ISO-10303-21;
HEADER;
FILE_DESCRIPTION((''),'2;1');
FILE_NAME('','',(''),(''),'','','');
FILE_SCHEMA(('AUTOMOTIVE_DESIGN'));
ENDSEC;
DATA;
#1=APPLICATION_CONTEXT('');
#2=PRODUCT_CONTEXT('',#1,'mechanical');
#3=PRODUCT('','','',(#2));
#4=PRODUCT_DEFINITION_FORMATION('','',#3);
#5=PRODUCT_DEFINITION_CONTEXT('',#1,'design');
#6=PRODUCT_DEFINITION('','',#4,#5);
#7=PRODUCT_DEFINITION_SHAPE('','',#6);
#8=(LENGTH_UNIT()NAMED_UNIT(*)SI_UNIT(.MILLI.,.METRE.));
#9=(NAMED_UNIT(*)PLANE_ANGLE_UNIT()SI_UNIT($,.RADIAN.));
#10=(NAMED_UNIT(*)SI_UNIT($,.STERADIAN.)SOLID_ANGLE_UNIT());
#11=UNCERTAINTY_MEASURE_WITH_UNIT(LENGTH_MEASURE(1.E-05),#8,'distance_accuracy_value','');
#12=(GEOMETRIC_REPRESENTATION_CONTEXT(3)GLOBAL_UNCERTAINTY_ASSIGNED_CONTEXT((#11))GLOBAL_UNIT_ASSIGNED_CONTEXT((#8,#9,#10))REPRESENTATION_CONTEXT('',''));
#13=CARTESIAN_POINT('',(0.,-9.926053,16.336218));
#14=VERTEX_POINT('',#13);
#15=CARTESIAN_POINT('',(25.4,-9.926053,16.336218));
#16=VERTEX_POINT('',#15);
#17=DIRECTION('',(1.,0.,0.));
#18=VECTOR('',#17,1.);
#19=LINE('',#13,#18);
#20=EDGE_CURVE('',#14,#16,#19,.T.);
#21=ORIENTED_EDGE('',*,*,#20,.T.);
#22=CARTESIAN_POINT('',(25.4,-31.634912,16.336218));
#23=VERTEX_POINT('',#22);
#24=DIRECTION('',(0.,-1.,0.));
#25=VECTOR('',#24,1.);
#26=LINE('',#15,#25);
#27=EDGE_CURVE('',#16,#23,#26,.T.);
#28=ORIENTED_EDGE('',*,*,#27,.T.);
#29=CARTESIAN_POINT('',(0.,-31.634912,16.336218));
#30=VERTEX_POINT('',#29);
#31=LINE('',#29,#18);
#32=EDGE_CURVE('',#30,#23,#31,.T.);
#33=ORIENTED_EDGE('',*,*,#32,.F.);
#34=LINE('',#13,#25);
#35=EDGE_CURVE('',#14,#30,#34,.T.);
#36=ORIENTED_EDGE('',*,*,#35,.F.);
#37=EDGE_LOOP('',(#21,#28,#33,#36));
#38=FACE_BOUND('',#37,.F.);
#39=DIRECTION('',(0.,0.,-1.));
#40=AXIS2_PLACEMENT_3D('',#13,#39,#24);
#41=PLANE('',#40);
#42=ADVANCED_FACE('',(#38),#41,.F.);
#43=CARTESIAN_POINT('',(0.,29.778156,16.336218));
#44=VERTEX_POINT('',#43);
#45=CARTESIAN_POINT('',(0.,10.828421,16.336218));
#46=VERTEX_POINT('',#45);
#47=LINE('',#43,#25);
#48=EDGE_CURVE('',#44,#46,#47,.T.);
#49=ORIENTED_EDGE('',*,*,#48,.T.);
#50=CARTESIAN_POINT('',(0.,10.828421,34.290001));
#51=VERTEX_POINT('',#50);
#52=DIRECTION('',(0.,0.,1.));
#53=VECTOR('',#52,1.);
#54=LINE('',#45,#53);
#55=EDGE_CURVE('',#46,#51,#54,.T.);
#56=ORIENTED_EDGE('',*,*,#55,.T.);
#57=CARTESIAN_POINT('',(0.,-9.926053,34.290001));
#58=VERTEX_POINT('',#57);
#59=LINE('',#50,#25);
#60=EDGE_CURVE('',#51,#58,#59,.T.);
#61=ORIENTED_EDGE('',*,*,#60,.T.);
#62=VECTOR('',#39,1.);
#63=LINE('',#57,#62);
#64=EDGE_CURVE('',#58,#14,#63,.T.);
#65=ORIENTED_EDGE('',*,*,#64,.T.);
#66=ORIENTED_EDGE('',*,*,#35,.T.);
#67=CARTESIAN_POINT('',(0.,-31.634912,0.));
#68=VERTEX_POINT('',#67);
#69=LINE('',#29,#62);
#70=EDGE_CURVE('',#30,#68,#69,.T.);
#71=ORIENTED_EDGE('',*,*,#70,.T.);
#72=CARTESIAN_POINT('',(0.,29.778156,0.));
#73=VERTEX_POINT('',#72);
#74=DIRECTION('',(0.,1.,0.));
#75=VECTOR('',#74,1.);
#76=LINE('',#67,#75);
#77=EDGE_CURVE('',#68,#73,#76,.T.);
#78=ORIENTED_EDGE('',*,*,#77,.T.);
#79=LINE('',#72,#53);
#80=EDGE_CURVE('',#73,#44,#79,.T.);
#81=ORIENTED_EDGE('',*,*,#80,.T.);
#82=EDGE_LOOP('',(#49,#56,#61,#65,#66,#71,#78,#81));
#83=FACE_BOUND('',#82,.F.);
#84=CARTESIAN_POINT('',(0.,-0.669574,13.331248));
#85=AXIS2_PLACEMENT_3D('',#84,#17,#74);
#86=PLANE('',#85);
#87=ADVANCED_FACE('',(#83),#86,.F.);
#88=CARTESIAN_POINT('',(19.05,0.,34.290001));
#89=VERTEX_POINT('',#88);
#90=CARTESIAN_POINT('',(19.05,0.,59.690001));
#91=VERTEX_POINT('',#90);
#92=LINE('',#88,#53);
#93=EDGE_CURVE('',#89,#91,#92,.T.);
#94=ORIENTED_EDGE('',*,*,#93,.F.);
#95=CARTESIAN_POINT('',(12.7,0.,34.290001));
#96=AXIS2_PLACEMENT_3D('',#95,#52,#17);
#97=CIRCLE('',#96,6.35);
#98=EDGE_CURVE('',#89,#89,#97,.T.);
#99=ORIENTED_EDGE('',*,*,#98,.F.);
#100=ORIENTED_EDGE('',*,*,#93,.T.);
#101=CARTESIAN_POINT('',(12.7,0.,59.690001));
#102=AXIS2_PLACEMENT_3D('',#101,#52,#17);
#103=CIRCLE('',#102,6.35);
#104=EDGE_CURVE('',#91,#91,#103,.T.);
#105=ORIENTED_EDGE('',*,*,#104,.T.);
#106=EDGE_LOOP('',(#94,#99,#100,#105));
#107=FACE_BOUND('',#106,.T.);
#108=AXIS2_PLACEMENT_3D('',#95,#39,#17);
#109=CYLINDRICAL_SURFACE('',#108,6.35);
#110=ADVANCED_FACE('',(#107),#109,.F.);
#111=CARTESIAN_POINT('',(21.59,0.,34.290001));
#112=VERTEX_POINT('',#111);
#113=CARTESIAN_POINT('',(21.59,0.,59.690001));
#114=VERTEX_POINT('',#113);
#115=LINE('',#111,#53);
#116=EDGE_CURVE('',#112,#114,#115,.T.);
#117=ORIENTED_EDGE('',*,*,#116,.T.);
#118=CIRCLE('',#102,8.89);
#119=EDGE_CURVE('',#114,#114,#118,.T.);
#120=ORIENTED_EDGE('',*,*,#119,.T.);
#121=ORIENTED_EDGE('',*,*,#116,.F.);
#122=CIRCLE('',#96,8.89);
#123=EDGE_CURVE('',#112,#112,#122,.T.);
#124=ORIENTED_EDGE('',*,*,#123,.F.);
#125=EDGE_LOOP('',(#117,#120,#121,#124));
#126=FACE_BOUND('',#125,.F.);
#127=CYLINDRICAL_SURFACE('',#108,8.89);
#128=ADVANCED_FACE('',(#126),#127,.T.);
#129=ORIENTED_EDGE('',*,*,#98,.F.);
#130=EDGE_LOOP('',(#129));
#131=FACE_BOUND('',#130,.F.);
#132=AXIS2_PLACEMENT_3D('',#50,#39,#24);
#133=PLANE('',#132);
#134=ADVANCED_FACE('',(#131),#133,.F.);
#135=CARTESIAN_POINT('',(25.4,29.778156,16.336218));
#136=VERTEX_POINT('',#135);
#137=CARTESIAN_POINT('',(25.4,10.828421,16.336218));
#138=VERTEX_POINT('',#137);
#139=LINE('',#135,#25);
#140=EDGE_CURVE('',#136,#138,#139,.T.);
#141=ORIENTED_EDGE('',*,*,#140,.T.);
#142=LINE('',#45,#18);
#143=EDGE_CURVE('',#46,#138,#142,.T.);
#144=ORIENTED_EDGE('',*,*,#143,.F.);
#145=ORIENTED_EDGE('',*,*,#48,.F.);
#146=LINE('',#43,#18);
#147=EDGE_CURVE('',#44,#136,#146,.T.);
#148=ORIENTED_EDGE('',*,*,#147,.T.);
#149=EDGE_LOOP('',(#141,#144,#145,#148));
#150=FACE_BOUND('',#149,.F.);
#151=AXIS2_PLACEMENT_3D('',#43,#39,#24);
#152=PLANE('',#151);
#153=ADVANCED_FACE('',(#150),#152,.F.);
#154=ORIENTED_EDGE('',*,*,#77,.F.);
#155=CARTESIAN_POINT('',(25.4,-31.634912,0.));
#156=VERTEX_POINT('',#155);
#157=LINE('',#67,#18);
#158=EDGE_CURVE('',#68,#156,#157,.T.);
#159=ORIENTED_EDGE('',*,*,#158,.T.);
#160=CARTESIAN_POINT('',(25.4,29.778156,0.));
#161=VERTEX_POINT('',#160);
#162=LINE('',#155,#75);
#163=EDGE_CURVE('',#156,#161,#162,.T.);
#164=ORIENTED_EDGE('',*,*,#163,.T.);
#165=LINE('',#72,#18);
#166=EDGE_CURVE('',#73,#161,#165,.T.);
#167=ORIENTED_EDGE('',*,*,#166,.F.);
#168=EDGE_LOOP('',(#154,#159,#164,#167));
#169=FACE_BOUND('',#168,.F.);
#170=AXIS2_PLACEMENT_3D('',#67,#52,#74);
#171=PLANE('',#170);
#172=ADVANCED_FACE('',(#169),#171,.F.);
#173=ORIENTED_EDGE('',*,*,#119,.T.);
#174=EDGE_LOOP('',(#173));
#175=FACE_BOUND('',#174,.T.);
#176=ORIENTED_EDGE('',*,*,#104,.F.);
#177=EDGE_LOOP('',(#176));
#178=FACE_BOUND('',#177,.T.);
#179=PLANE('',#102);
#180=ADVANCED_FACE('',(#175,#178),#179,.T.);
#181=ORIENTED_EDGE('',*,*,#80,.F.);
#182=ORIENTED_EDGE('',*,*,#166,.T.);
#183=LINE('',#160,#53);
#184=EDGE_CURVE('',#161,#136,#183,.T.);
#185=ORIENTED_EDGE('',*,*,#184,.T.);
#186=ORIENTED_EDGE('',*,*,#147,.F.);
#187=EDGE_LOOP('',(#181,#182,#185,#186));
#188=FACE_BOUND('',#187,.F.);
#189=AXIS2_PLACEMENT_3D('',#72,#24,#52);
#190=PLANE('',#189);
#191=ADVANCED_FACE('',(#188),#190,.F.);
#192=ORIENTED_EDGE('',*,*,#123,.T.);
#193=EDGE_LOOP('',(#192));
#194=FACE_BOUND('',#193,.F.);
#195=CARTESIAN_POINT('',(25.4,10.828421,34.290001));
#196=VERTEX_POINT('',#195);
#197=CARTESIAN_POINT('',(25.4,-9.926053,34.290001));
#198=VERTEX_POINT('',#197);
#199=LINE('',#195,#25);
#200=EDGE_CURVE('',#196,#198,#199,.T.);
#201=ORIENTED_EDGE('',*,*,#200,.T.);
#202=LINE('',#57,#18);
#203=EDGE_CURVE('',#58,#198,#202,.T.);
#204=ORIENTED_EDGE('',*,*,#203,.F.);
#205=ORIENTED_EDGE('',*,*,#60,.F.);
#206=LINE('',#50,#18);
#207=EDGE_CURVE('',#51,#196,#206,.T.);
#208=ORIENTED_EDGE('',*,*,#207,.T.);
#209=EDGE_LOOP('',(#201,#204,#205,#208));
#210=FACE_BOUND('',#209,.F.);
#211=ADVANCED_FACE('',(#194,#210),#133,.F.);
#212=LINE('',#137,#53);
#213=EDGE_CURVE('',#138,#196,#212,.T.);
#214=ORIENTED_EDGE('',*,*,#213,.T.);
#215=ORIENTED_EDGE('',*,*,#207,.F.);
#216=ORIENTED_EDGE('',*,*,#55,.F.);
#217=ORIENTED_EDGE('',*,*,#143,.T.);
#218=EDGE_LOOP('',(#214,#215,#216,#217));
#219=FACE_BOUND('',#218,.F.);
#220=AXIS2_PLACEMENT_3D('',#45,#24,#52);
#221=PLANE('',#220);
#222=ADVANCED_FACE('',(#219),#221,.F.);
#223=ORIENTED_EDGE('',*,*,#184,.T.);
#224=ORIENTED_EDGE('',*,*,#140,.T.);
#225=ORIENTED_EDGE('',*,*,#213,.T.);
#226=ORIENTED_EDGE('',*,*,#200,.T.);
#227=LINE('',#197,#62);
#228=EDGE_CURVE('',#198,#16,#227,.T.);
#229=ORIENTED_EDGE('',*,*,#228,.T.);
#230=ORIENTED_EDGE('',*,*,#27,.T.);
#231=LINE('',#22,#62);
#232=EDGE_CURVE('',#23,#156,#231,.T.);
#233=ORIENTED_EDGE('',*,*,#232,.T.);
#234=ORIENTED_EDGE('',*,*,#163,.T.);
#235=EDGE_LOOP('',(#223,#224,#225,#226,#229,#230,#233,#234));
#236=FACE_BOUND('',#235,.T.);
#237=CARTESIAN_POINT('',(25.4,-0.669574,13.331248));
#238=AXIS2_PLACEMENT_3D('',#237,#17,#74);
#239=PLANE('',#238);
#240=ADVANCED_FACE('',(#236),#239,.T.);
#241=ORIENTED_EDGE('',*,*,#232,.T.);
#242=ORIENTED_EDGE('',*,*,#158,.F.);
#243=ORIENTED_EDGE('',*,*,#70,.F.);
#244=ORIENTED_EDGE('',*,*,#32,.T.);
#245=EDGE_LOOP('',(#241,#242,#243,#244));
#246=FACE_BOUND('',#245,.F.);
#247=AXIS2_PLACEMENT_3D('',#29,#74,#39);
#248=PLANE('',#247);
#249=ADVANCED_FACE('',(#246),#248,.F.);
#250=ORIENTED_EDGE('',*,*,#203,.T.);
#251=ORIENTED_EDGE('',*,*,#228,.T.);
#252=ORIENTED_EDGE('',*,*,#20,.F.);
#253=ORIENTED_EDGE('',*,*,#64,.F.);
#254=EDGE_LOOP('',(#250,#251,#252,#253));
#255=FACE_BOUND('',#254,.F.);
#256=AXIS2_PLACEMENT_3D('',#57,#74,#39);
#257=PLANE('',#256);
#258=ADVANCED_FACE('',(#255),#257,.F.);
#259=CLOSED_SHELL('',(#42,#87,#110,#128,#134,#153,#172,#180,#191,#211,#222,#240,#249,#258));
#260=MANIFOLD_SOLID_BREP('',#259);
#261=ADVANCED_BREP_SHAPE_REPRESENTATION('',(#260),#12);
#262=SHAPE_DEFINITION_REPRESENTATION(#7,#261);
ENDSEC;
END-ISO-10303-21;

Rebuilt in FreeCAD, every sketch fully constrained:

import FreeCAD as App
import Part
import Sketcher

V = App.Vector
Q = App.Units.Quantity

doc = App.newDocument("Part")
body = doc.addObject("PartDesign::Body", "Body")

sketch1 = body.newObject("Sketcher::SketchObject", "Sketch")
sketch1.AttachmentSupport = (doc.getObject("YZ_Plane"), [""])
sketch1.MapMode = "FlatFace"
sketch1.addGeometry(Part.LineSegment(V(-32, 16, 0), V(-32, 0, 0)), False)
sketch1.addGeometry(Part.LineSegment(V(-32, 0, 0), V(30, 0, 0)), False)
sketch1.addGeometry(Part.LineSegment(V(30, 0, 0), V(30, 16, 0)), False)
sketch1.addGeometry(Part.LineSegment(V(30, 16, 0), V(11, 16, 0)), False)
sketch1.addGeometry(Part.LineSegment(V(11, 16, 0), V(11, 34, 0)), False)
sketch1.addGeometry(Part.LineSegment(V(11, 34, 0), V(-10, 34, 0)), False)
sketch1.addGeometry(Part.LineSegment(V(-10, 34, 0), V(-10, 16, 0)), False)
sketch1.addGeometry(Part.LineSegment(V(-10, 16, 0), V(-32, 16, 0)), False)
sketch1.addConstraint(Sketcher.Constraint("Coincident", 0, 2, 1, 1))
sketch1.addConstraint(Sketcher.Constraint("Coincident", 1, 2, 2, 1))
sketch1.addConstraint(Sketcher.Constraint("Coincident", 2, 2, 3, 1))
sketch1.addConstraint(Sketcher.Constraint("Coincident", 3, 2, 4, 1))
sketch1.addConstraint(Sketcher.Constraint("Coincident", 4, 2, 5, 1))
sketch1.addConstraint(Sketcher.Constraint("Coincident", 5, 2, 6, 1))
sketch1.addConstraint(Sketcher.Constraint("Coincident", 6, 2, 7, 1))
sketch1.addConstraint(Sketcher.Constraint("Coincident", 7, 2, 0, 1))
sketch1.addConstraint(Sketcher.Constraint("Vertical", 0))
sketch1.addConstraint(Sketcher.Constraint("Horizontal", 1))
sketch1.addConstraint(Sketcher.Constraint("Vertical", 2))
sketch1.addConstraint(Sketcher.Constraint("Horizontal", 3))
sketch1.addConstraint(Sketcher.Constraint("Vertical", 4))
sketch1.addConstraint(Sketcher.Constraint("Horizontal", 5))
sketch1.addConstraint(Sketcher.Constraint("Vertical", 6))
sketch1.addConstraint(Sketcher.Constraint("Horizontal", 7))
sketch1.addConstraint(Sketcher.Constraint("PointOnObject", 0, 2, -1))
sketch1.addConstraint(Sketcher.Constraint("Horizontal", 3, 2, 6, 2))
sketch1.addConstraint(Sketcher.Constraint("DistanceY", -1, 1, 4, 2, Q("1.35 in")))
sketch1.addConstraint(Sketcher.Constraint("DistanceX", 7, 2, 7, 1, Q("21.708859 mm")))
sketch1.addConstraint(Sketcher.Constraint("DistanceX", 1, 1, 1, 2, Q("61.413068 mm")))
sketch1.addConstraint(Sketcher.Constraint("DistanceX", 3, 2, 3, 1, Q("18.949735 mm")))
sketch1.addConstraint(Sketcher.Constraint("DistanceY", 0, 2, 0, 1, Q("16.336218 mm")))
sketch1.addConstraint(Sketcher.Constraint("DistanceX", 0, 2, -1, 1, Q("31.634912 mm")))
pad1 = body.newObject("PartDesign::Pad", "Pad")
pad1.Profile = sketch1
pad1.Length = Q("1 in")

sketch2 = body.newObject("Sketcher::SketchObject", "Sketch001")
sketch2.AttachmentSupport = (doc.getObject("XY_Plane"), [""])
sketch2.MapMode = "FlatFace"
sketch2.AttachmentOffset = App.Placement(V(0, 0, 1.35 * 25.4), App.Rotation())
sketch2.addGeometry(Part.Circle(V(13, 0, 0), V(0, 0, 1), 9), False)
sketch2.addGeometry(Part.Circle(V(13, 0, 0), V(0, 0, 1), 6), False)
sketch2.addConstraint(Sketcher.Constraint("Coincident", 1, 3, 0, 3))
sketch2.addConstraint(Sketcher.Constraint("PointOnObject", 0, 3, -1))
sketch2.addConstraint(Sketcher.Constraint("Diameter", 0, Q("0.7 in")))
sketch2.addConstraint(Sketcher.Constraint("Diameter", 1, Q("0.5 in")))
sketch2.addConstraint(Sketcher.Constraint("DistanceX", -1, 1, 0, 3, Q("0.5 in")))
pad2 = body.newObject("PartDesign::Pad", "Pad001")
pad2.Profile = sketch2
pad2.Length = Q("1 in")

doc.recompute()
